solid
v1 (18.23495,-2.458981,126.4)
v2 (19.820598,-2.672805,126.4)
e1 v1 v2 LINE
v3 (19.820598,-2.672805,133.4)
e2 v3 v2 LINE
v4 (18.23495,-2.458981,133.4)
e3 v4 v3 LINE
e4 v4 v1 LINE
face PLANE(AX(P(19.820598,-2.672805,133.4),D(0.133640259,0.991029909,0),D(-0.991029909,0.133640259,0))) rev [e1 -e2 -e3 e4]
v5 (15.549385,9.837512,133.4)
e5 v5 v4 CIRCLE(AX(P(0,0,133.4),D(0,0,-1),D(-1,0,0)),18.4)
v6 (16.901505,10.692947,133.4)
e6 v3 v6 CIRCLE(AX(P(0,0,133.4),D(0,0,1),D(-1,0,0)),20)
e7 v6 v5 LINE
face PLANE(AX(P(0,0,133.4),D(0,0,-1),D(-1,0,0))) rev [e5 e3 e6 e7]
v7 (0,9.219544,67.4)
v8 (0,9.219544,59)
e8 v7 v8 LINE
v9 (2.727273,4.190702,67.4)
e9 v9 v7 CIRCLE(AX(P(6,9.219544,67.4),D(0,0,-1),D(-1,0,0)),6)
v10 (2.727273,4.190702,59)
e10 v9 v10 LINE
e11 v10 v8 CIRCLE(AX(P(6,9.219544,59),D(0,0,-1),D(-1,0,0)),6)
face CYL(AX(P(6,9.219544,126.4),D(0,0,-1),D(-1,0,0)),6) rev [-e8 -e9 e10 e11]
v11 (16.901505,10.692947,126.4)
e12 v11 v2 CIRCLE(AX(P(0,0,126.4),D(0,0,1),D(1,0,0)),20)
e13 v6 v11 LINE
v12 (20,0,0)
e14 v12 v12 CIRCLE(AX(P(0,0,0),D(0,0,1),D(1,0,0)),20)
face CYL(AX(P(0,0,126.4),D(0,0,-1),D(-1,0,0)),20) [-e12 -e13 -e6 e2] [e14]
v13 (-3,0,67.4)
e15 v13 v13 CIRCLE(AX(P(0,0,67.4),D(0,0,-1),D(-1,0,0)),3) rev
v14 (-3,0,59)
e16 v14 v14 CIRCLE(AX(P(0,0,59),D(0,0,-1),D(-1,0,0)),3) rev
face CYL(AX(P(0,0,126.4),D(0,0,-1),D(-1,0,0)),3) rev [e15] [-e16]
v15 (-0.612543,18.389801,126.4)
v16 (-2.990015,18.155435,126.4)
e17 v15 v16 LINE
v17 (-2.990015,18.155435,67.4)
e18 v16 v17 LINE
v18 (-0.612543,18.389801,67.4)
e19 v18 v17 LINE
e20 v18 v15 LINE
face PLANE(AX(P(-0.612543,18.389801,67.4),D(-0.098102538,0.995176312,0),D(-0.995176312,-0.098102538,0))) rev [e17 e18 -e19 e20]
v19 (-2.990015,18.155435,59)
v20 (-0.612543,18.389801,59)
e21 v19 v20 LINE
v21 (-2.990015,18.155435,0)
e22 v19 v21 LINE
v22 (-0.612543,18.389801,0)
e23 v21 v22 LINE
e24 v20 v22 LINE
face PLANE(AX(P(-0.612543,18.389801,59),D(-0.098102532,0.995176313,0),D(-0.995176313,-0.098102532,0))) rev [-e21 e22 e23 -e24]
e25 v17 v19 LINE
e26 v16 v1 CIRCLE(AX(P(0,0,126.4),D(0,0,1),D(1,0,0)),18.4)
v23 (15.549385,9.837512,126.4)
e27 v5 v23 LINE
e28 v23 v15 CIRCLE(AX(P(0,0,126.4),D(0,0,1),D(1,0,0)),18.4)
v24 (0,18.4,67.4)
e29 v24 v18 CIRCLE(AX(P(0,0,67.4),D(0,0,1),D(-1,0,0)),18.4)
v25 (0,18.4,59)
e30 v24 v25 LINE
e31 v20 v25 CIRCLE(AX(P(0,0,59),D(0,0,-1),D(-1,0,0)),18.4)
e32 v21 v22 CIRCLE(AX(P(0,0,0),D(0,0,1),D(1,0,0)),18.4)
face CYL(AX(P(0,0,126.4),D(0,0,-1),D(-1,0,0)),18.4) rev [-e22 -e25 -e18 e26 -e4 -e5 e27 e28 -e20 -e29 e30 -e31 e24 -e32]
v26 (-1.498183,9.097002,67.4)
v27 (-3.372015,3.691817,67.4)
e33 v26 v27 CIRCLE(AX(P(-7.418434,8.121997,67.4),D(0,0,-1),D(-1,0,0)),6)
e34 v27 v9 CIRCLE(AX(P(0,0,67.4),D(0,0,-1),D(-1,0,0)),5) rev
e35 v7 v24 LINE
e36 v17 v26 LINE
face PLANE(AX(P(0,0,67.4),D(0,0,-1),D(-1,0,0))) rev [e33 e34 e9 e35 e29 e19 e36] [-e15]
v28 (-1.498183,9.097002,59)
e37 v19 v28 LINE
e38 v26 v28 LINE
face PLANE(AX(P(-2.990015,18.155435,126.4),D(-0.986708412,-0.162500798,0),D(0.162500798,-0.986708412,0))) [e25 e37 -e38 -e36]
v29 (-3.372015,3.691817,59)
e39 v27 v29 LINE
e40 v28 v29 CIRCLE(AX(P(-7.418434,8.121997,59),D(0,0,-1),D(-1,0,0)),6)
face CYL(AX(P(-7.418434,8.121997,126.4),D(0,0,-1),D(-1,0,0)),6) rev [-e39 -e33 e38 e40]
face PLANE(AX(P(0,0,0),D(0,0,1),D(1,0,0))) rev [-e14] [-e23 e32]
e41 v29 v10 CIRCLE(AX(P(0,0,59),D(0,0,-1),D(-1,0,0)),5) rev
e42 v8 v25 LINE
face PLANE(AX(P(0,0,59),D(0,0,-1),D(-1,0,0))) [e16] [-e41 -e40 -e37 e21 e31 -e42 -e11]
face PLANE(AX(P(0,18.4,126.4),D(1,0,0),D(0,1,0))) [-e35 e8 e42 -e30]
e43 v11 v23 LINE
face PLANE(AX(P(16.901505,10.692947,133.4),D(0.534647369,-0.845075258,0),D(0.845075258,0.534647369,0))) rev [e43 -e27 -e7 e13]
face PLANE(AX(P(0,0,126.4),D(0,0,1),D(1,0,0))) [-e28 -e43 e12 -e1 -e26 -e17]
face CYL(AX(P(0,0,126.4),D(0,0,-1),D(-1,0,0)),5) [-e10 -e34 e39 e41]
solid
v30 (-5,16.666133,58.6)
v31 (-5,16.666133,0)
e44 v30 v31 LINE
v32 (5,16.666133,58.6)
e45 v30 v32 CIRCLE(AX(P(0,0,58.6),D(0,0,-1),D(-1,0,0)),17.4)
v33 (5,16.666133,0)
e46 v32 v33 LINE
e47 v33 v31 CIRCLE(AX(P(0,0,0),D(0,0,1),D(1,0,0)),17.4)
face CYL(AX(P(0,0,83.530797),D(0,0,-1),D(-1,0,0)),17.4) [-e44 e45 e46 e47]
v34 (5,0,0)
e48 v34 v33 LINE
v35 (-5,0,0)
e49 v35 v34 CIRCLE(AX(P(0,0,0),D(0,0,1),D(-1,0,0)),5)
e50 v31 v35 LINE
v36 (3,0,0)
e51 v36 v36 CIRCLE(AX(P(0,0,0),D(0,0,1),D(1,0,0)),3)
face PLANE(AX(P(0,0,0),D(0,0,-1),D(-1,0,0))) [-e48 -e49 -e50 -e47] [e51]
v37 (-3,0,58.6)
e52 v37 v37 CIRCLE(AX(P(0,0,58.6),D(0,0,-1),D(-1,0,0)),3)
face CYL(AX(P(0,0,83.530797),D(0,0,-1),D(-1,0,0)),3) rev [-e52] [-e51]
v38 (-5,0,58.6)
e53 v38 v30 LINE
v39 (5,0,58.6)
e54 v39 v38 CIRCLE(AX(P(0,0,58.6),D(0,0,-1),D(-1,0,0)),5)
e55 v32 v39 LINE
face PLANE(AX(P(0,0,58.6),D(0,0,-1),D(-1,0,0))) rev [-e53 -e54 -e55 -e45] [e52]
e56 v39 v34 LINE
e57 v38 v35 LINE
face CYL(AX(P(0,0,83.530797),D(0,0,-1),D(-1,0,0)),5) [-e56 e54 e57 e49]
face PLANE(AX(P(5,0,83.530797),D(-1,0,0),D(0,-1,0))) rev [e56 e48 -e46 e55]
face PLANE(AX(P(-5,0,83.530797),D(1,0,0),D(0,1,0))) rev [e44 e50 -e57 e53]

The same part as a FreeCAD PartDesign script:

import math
import FreeCAD as App
import Part
import Sketcher

V = App.Vector
Q = App.Units.Quantity

doc = App.newDocument("Part")
body = doc.addObject("PartDesign::Body", "Body")

sketch1 = body.newObject("Sketcher::SketchObject", "Sketch")
sketch1.AttachmentSupport = (doc.getObject("XY_Plane"), [""])
sketch1.MapMode = "FlatFace"
sketch1.addGeometry(Part.Circle(V(0, 0, 0), V(0, 0, 1), 20), False)
sketch1.addGeometry(Part.Circle(V(0, 0, 0), V(0, 0, 1), 18), False)
sketch1.addConstraint(Sketcher.Constraint("Coincident", 0, 3, -1, 1))
sketch1.addConstraint(Sketcher.Constraint("Coincident", 1, 3, -1, 1))
sketch1.addConstraint(Sketcher.Constraint("Diameter", 0, 40.0))
sketch1.addConstraint(Sketcher.Constraint("Diameter", 1, 36.8))
pad1 = body.newObject("PartDesign::Pad", "Pad")
pad1.Profile = sketch1
pad1.Length = 126.4

sketch2 = body.newObject("Sketcher::SketchObject", "Sketch001")
sketch2.AttachmentSupport = (doc.getObject("XY_Plane"), [""])
sketch2.MapMode = "FlatFace"
sketch2.addGeometry(Part.LineSegment(V(0, 18.4, 0), V(0, 9.2, 0)), False)
sketch2.addGeometry(Part.ArcOfCircle(Part.Circle(V(6, 9.2, 0), V(0, 0, 1), 6), math.radians(-180), math.radians(-123)), False)
sketch2.addGeometry(Part.ArcOfCircle(Part.Circle(V(0, 0, 0), V(0, 0, 1), 5), math.radians(132), math.radians(417)), False)
sketch2.addGeometry(Part.ArcOfCircle(Part.Circle(V(-7.4, 8.1, 0), V(0, 0, 1), 6), math.radians(-48), math.radians(9)), False)
sketch2.addGeometry(Part.LineSegment(V(-1.5, 9.1, 0), V(-3, 18.2, 0)), False)
sketch2.addGeometry(Part.ArcOfCircle(Part.Circle(V(0, 0, 0), V(0, 0, 1), 18.4), math.radians(90), math.radians(99.35)), False)
sketch2.addGeometry(Part.Circle(V(0, 0, 0), V(0, 0, 1), 3), False)
sketch2.addConstraint(Sketcher.Constraint("Tangent", 0, 2, 1, 1))
sketch2.addConstraint(Sketcher.Constraint("Tangent", 1, 2, 2, 2))
sketch2.addConstraint(Sketcher.Constraint("Tangent", 2, 1, 3, 1))
sketch2.addConstraint(Sketcher.Constraint("Tangent", 3, 2, 4, 1))
sketch2.addConstraint(Sketcher.Constraint("Coincident", 4, 2, 5, 2))
sketch2.addConstraint(Sketcher.Constraint("Coincident", 5, 1, 0, 1))
sketch2.addConstraint(Sketcher.Constraint("Vertical", 0))
sketch2.addConstraint(Sketcher.Constraint("Coincident", 2, 3, -1, 1))
sketch2.addConstraint(Sketcher.Constraint("Coincident", 5, 3, -1, 1))
sketch2.addConstraint(Sketcher.Constraint("Coincident", 6, 3, -1, 1))
sketch2.addConstraint(Sketcher.Constraint("Equal", 1, 3))
sketch2.addConstraint(Sketcher.Constraint("PointOnObject", 0, 2, -2))
sketch2.addConstraint(Sketcher.Constraint("Diameter", 6, 6.0))
sketch2.addConstraint(Sketcher.Constraint("Radius", 1, 6.0))
sketch2.addConstraint(Sketcher.Constraint("Radius", 2, 5.0))
sketch2.addConstraint(Sketcher.Constraint("Radius", 5, 18.4))
sketch2.addConstraint(Sketcher.Constraint("DistanceX", 2, 1, 4, 2, 0.382001))
sketch2.addConstraint(Sketcher.Constraint("DistanceY", 1, 2, 3, 2, 4.9063))
pad2 = body.newObject("PartDesign::Pad", "Pad001")
pad2.Profile = sketch2
pad2.Length = 126.4

sketch3 = body.newObject("Sketcher::SketchObject", "Sketch002")
sketch3.AttachmentSupport = (doc.getObject("XY_Plane"), [""])
sketch3.MapMode = "FlatFace"
sketch3.addGeometry(Part.LineSegment(V(-3, 18.2, 0), V(-0.6, 18.4, 0)), False)
sketch3.addGeometry(Part.ArcOfCircle(Part.Circle(V(0, 0, 0), V(0, 0, 1), 18.4), math.radians(99), math.radians(452)), False)
sketch3.addConstraint(Sketcher.Constraint("Coincident", 0, 1, 1, 1))
sketch3.addConstraint(Sketcher.Constraint("Coincident", 1, 2, 0, 2))
sketch3.addConstraint(Sketcher.Constraint("Coincident", 1, 3, -1, 1))
sketch3.addConstraint(Sketcher.Constraint("Radius", 1, 18.4))
sketch3.addConstraint(Sketcher.Constraint("DistanceY", -1, 1, 1, 2, 18.389801))
sketch3.addConstraint(Sketcher.Constraint("DistanceX", 0, 1, 1, 2, 2.377472))
pocket1 = body.newObject("PartDesign::Pocket", "Pocket")
pocket1.Profile = sketch3
pocket1.Length = 59
pocket1.Reversed = True

sketch4 = body.newObject("Sketcher::SketchObject", "Sketch003")
sketch4.AttachmentSupport = (doc.getObject("XY_Plane"), [""])
sketch4.MapMode = "FlatFace"
sketch4.AttachmentOffset = App.Placement(V(0, 0, 126.4), App.Rotation())
sketch4.addGeometry(Part.LineSegment(V(-0.6, 18.4, 0), V(-3, 18.2, 0)), False)
sketch4.addGeometry(Part.ArcOfCircle(Part.Circle(V(0, 0, 0), V(0, 0, 1), 18.4), math.radians(99), math.radians(452)), False)
sketch4.addConstraint(Sketcher.Constraint("Coincident", 0, 1, 1, 2))
sketch4.addConstraint(Sketcher.Constraint("Coincident", 1, 1, 0, 2))
sketch4.addConstraint(Sketcher.Constraint("Coincident", 1, 3, -1, 1))
sketch4.addConstraint(Sketcher.Constraint("Radius", 1, 18.4))
sketch4.addConstraint(Sketcher.Constraint("DistanceY", -1, 1, 0, 1, 18.389801))
sketch4.addConstraint(Sketcher.Constraint("DistanceX", 1, 1, 0, 1, 2.377471))
pocket2 = body.newObject("PartDesign::Pocket", "Pocket001")
pocket2.Profile = sketch4
pocket2.Length = 59

sketch5 = body.newObject("Sketcher::SketchObject", "Sketch004")
sketch5.AttachmentSupport = (doc.getObject("XY_Plane"), [""])
sketch5.MapMode = "FlatFace"
sketch5.AttachmentOffset = App.Placement(V(0, 0, 126.4), App.Rotation())
sketch5.addGeometry(Part.LineSegment(V(16.9, 10.7, 0), V(15.5, 9.8, 0)), False)
sketch5.addGeometry(Part.ArcOfCircle(Part.Circle(V(0, 0, 0), V(0, 0, 1), 18.4), math.radians(-8), math.radians(32)), False)
sketch5.addGeometry(Part.LineSegment(V(18.2, -2.5, 0), V(19.8, -2.7, 0)), False)
sketch5.addGeometry(Part.ArcOfCircle(Part.Circle(V(0, 0, 0), V(0, 0, 1), 20), math.radians(-8), math.radians(32)), False)
sketch5.addConstraint(Sketcher.Constraint("Coincident", 0, 2, 1, 2))
sketch5.addConstraint(Sketcher.Constraint("Coincident", 1, 1, 2, 1))
sketch5.addConstraint(Sketcher.Constraint("Coincident", 2, 2, 3, 1))
sketch5.addConstraint(Sketcher.Constraint("Coincident", 3, 2, 0, 1))
sketch5.addConstraint(Sketcher.Constraint("Coincident", 1, 3, -1, 1))
sketch5.addConstraint(Sketcher.Constraint("Coincident", 3, 3, -1, 1))
sketch5.addConstraint(Sketcher.Constraint("Radius", 3, 20.0))
sketch5.addConstraint(Sketcher.Constraint("Radius", 1, 18.4))
sketch5.addConstraint(Sketcher.Constraint("Angle", 0, Q("-147.68 deg")))
sketch5.addConstraint(Sketcher.Constraint("Angle", 2, Q("-7.68 deg")))
sketch5.addConstraint(Sketcher.Constraint("DistanceX", -1, 1, 2, 2, 19.820598))
sketch5.addConstraint(Sketcher.Constraint("DistanceY", -1, 1, 0, 2, 9.837512))
pad3 = body.newObject("PartDesign::Pad", "Pad002")
pad3.Profile = sketch5
pad3.Length = 7
body2 = doc.addObject("PartDesign::Body", "Body001")

sketch6 = body2.newObject("Sketcher::SketchObject", "Sketch005")
sketch6.AttachmentSupport = (doc.getObject("XY_Plane001"), [""])
sketch6.MapMode = "FlatFace"
sketch6.addGeometry(Part.LineSegment(V(5, 0, 0), V(5, 16.7, 0)), False)
sketch6.addGeometry(Part.ArcOfCircle(Part.Circle(V(0, 0, 0), V(0, 0, 1), 17.4), math.radians(73), math.radians(107)), False)
sketch6.addGeometry(Part.LineSegment(V(-5, 16.7, 0), V(-5, 0, 0)), False)
sketch6.addGeometry(Part.ArcOfCircle(Part.Circle(V(0, 0, 0), V(0, 0, 1), 5), math.radians(180), math.radians(360)), False)
sketch6.addGeometry(Part.Circle(V(0, 0, 0), V(0, 0, 1), 3), False)
sketch6.addConstraint(Sketcher.Constraint("Coincident", 0, 2, 1, 1))
sketch6.addConstraint(Sketcher.Constraint("Coincident", 1, 2, 2, 1))
sketch6.addConstraint(Sketcher.Constraint("Tangent", 2, 2, 3, 1))
sketch6.addConstraint(Sketcher.Constraint("Tangent", 3, 2, 0, 1))
sketch6.addConstraint(Sketcher.Constraint("Vertical", 0))
sketch6.addConstraint(Sketcher.Constraint("Vertical", 2))
sketch6.addConstraint(Sketcher.Constraint("Coincident", 1, 3, -1, 1))
sketch6.addConstraint(Sketcher.Constraint("Coincident", 3, 3, -1, 1))
sketch6.addConstraint(Sketcher.Constraint("Coincident", 4, 3, -1, 1))
sketch6.addConstraint(Sketcher.Constraint("Diameter", 4, 6.0))
sketch6.addConstraint(Sketcher.Constraint("Radius", 3, 5.0))
sketch6.addConstraint(Sketcher.Constraint("Radius", 1, 17.4))
pad4 = body2.newObject("PartDesign::Pad", "Pad003")
pad4.Profile = sketch6
pad4.Length = 58.6

doc.recompute()
